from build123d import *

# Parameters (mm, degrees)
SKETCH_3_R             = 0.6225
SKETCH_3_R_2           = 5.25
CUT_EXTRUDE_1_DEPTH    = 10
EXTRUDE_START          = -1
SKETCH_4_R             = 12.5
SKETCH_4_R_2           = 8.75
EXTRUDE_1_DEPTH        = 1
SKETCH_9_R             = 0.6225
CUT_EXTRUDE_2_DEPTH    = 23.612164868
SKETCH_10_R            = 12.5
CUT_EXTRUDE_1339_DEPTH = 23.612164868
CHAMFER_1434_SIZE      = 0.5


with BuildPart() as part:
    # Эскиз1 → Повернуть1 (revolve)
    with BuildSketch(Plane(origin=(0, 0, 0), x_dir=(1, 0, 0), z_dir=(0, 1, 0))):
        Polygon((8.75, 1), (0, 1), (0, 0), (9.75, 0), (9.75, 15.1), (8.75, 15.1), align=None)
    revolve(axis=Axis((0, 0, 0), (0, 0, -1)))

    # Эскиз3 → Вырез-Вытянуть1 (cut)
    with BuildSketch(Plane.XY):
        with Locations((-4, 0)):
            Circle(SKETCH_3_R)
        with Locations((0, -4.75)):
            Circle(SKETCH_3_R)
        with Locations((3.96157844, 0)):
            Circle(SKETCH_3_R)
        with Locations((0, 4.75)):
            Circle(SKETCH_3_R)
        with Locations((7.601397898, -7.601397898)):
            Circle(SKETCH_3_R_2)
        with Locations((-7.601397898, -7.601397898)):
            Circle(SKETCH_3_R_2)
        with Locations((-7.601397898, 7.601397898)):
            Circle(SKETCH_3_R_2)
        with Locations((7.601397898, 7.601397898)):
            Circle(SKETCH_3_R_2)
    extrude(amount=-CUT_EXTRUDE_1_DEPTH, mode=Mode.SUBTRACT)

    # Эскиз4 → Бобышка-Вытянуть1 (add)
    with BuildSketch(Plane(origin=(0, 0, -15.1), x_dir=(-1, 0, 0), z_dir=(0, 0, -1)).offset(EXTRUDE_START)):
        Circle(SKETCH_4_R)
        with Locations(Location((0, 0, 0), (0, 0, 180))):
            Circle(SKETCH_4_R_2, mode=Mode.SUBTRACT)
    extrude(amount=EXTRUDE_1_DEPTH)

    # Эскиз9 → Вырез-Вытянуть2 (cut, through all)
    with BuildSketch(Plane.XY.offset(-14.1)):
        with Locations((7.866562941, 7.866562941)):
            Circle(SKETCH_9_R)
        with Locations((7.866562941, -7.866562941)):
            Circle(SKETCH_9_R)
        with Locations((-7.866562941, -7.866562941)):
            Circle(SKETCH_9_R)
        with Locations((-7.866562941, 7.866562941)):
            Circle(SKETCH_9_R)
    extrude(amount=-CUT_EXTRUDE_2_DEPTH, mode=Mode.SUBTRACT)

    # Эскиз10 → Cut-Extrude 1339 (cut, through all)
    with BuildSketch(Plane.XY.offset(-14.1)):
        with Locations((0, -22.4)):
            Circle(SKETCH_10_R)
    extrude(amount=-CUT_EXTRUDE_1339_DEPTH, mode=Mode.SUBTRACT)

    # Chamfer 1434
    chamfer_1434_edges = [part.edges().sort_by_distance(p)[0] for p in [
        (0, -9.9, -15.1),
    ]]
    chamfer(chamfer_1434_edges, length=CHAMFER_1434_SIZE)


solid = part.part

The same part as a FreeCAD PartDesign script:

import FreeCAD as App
import Part
import Sketcher
from FreeCAD import Vector


def edges_at(feature, points):
    """Names of the edges that pass closest to the given points."""
    edges = feature.Shape.Edges
    near = lambda p: min(range(len(edges)), key=lambda i: edges[i].distToShape(Part.Vertex(*p))[0])
    return sorted({f"Edge{near(p) + 1}" for p in points})


def add_polygon(sketch, points):
    """Adds a closed chain of lines whose ends are joined by coincident constraints."""
    first, n = sketch.GeometryCount, len(points)
    for a, b in zip(points, points[1:] + points[:1]):
        sketch.addGeometry(Part.LineSegment(App.Vector(*a, 0), App.Vector(*b, 0)), False)
    for i in range(n):
        sketch.addConstraint(Sketcher.Constraint("Coincident", first + i, 2, first + (i + 1) % n, 1))

doc = App.newDocument("Part")
body = doc.addObject("PartDesign::Body", "Body")

# Sketch on XZ plane
sketch1 = body.newObject("Sketcher::SketchObject", "Sketch")
sketch1.AttachmentSupport = (doc.getObject("XZ_Plane"), [""])
sketch1.MapMode = "FlatFace"
add_polygon(sketch1, [(8.8, -1), (0, -1), (0, 0), (9.8, 0), (9.8, -15.1), (8.8, -15.1)])  # lines 0-5
sketch1.addConstraint([
    Sketcher.Constraint("Horizontal", 0),
    Sketcher.Constraint("Vertical", 1),
    Sketcher.Constraint("Horizontal", 2),
    Sketcher.Constraint("Vertical", 3),
    Sketcher.Constraint("Horizontal", 4),
    Sketcher.Constraint("Vertical", 5),
    Sketcher.Constraint("Coincident", 1, 2, -1, 1),
    Sketcher.Constraint("Equal", 4, 1),
    Sketcher.Constraint("DistanceX", 4, 2, 4, 1, 1.0),
    Sketcher.Constraint("DistanceY", 3, 2, 3, 1, 15.1),
    Sketcher.Constraint("DistanceX", 0, 2, 0, 1, 8.75),
])
revolution = body.newObject("PartDesign::Revolution", "Revolution")
revolution.Profile = sketch1
revolution.ReferenceAxis = (sketch1, ["V_Axis"])
revolution.Angle = 360

# Sketch on XY plane
sketch2 = body.newObject("Sketcher::SketchObject", "Sketch001")
sketch2.AttachmentSupport = (doc.getObject("XY_Plane"), [""])
sketch2.MapMode = "FlatFace"
sketch2.addGeometry([
    Part.Circle(Vector(-4, 0, 0), Vector(0, 0, 1), 0.6),  # 0
    Part.Circle(Vector(0, -4.8, 0), Vector(0, 0, 1), 0.6),  # 1
    Part.Circle(Vector(4, 0, 0), Vector(0, 0, 1), 0.6),  # 2
    Part.Circle(Vector(0, 4.8, 0), Vector(0, 0, 1), 0.6),  # 3
    Part.Circle(Vector(7.6, -7.6, 0), Vector(0, 0, 1), 5.2),  # 4
    Part.Circle(Vector(-7.6, -7.6, 0), Vector(0, 0, 1), 5.2),  # 5
    Part.Circle(Vector(-7.6, 7.6, 0), Vector(0, 0, 1), 5.2),  # 6
    Part.Circle(Vector(7.6, 7.6, 0), Vector(0, 0, 1), 5.2),  # 7
], False)
sketch2.addConstraint([
    Sketcher.Constraint("Equal", 0, 1),
    Sketcher.Constraint("Equal", 1, 2),
    Sketcher.Constraint("Equal", 2, 3),
    Sketcher.Constraint("Equal", 4, 5),
    Sketcher.Constraint("Equal", 5, 6),
    Sketcher.Constraint("Equal", 6, 7),
    Sketcher.Constraint("Symmetric", 1, 3, 3, 3, -1, 1),
    Sketcher.Constraint("Symmetric", 4, 3, 6, 3, -1, 1),
    Sketcher.Constraint("Symmetric", 5, 3, 7, 3, -1, 1),
    Sketcher.Constraint("Symmetric", 4, 3, 5, 3, -2),
    Sketcher.Constraint("PointOnObject", 0, 3, -1),
    Sketcher.Constraint("PointOnObject", 1, 3, -2),
    Sketcher.Constraint("PointOnObject", 2, 3, -1),
    Sketcher.Constraint("Diameter", 4, 10.5),
    Sketcher.Constraint("Diameter", 0, 1.245),
    Sketcher.Constraint("DistanceX", 0, 3, -1, 1, 4.0),
    Sketcher.Constraint("DistanceY", 1, 3, 3, 3, 9.5),
    Sketcher.Constraint("DistanceX", -1, 1, 2, 3, 3.961578),
    Sketcher.Constraint("DistanceX", 2, 3, 4, 3, 3.639819),
    Sketcher.Constraint("DistanceY", 4, 3, -1, 1, 7.601398),
])
pocket1 = body.newObject("PartDesign::Pocket", "Pocket")
pocket1.Profile = sketch2
pocket1.Length = 10

# Sketch on XY plane
sketch3 = body.newObject("Sketcher::SketchObject", "Sketch002")
sketch3.AttachmentSupport = (doc.getObject("XY_Plane"), [""])
sketch3.MapMode = "FlatFace"
sketch3.AttachmentOffset = App.Placement(Vector(0, 0, -14.1), App.Rotation())
sketch3.addGeometry([
    Part.Circle(Vector(0, 0, 0), Vector(0, 0, 1), 12),
    Part.Circle(Vector(0, 0, 0), Vector(0, 0, 1), 9),
], False)
sketch3.addConstraint([
    Sketcher.Constraint("Coincident", 0, 3, -1, 1),
    Sketcher.Constraint("Coincident", 1, 3, -1, 1),
    Sketcher.Constraint("Diameter", 0, 25.0),
    Sketcher.Constraint("Diameter", 1, 17.5),
])
pad1 = body.newObject("PartDesign::Pad", "Pad")
pad1.Profile = sketch3
pad1.Length = 1
pad1.Reversed = True

# Sketch on XY plane
sketch4 = body.newObject("Sketcher::SketchObject", "Sketch003")
sketch4.AttachmentSupport = (doc.getObject("XY_Plane"), [""])
sketch4.MapMode = "FlatFace"
sketch4.AttachmentOffset = App.Placement(Vector(0, 0, -14.1), App.Rotation())
sketch4.addGeometry([
    Part.Circle(Vector(7.9, 7.9, 0), Vector(0, 0, 1), 0.6),
    Part.Circle(Vector(7.9, -7.9, 0), Vector(0, 0, 1), 0.6),
    Part.Circle(Vector(-7.9, -7.9, 0), Vector(0, 0, 1), 0.6),
    Part.Circle(Vector(-7.9, 7.9, 0), Vector(0, 0, 1), 0.6),
], False)
sketch4.addConstraint([
    Sketcher.Constraint("Equal", 0, 1),
    Sketcher.Constraint("Equal", 1, 2),
    Sketcher.Constraint("Equal", 2, 3),
    Sketcher.Constraint("Symmetric", 0, 3, 2, 3, -1, 1),
    Sketcher.Constraint("Symmetric", 1, 3, 3, 3, -1, 1),
    Sketcher.Constraint("Symmetric", 1, 3, 2, 3, -2),
    Sketcher.Constraint("Diameter", 0, 1.245),
    Sketcher.Constraint("DistanceX", -1, 1, 0, 3, 7.866563),
    Sketcher.Constraint("DistanceY", -1, 1, 0, 3, 7.866563),
])
pocket2 = body.newObject("PartDesign::Pocket", "Pocket001")
pocket2.Profile = sketch4
pocket2.Type = "ThroughAll"

# Sketch on XY plane
sketch5 = body.newObject("Sketcher::SketchObject", "Sketch004")
sketch5.AttachmentSupport = (doc.getObject("XY_Plane"), [""])
sketch5.MapMode = "FlatFace"
sketch5.AttachmentOffset = App.Placement(Vector(0, 0, -14.1), App.Rotation())
sketch5.addGeometry(Part.Circle(Vector(0, -22, 0), Vector(0, 0, 1), 12), False)
sketch5.addConstraint([
    Sketcher.Constraint("PointOnObject", 0, 3, -2),
    Sketcher.Constraint("Diameter", 0, 25.0),
    Sketcher.Constraint("DistanceY", 0, 3, -1, 1, 22.4),
])
pocket3 = body.newObject("PartDesign::Pocket", "Pocket002")
pocket3.Profile = sketch5
pocket3.Type = "ThroughAll"
doc.recompute()

chamfer = body.newObject("PartDesign::Chamfer", "Chamfer")
chamfer.Base = (pocket3, edges_at(pocket3, [(0, -9.9, -15.1)]))
chamfer.Size = 0.5

doc.recompute()
